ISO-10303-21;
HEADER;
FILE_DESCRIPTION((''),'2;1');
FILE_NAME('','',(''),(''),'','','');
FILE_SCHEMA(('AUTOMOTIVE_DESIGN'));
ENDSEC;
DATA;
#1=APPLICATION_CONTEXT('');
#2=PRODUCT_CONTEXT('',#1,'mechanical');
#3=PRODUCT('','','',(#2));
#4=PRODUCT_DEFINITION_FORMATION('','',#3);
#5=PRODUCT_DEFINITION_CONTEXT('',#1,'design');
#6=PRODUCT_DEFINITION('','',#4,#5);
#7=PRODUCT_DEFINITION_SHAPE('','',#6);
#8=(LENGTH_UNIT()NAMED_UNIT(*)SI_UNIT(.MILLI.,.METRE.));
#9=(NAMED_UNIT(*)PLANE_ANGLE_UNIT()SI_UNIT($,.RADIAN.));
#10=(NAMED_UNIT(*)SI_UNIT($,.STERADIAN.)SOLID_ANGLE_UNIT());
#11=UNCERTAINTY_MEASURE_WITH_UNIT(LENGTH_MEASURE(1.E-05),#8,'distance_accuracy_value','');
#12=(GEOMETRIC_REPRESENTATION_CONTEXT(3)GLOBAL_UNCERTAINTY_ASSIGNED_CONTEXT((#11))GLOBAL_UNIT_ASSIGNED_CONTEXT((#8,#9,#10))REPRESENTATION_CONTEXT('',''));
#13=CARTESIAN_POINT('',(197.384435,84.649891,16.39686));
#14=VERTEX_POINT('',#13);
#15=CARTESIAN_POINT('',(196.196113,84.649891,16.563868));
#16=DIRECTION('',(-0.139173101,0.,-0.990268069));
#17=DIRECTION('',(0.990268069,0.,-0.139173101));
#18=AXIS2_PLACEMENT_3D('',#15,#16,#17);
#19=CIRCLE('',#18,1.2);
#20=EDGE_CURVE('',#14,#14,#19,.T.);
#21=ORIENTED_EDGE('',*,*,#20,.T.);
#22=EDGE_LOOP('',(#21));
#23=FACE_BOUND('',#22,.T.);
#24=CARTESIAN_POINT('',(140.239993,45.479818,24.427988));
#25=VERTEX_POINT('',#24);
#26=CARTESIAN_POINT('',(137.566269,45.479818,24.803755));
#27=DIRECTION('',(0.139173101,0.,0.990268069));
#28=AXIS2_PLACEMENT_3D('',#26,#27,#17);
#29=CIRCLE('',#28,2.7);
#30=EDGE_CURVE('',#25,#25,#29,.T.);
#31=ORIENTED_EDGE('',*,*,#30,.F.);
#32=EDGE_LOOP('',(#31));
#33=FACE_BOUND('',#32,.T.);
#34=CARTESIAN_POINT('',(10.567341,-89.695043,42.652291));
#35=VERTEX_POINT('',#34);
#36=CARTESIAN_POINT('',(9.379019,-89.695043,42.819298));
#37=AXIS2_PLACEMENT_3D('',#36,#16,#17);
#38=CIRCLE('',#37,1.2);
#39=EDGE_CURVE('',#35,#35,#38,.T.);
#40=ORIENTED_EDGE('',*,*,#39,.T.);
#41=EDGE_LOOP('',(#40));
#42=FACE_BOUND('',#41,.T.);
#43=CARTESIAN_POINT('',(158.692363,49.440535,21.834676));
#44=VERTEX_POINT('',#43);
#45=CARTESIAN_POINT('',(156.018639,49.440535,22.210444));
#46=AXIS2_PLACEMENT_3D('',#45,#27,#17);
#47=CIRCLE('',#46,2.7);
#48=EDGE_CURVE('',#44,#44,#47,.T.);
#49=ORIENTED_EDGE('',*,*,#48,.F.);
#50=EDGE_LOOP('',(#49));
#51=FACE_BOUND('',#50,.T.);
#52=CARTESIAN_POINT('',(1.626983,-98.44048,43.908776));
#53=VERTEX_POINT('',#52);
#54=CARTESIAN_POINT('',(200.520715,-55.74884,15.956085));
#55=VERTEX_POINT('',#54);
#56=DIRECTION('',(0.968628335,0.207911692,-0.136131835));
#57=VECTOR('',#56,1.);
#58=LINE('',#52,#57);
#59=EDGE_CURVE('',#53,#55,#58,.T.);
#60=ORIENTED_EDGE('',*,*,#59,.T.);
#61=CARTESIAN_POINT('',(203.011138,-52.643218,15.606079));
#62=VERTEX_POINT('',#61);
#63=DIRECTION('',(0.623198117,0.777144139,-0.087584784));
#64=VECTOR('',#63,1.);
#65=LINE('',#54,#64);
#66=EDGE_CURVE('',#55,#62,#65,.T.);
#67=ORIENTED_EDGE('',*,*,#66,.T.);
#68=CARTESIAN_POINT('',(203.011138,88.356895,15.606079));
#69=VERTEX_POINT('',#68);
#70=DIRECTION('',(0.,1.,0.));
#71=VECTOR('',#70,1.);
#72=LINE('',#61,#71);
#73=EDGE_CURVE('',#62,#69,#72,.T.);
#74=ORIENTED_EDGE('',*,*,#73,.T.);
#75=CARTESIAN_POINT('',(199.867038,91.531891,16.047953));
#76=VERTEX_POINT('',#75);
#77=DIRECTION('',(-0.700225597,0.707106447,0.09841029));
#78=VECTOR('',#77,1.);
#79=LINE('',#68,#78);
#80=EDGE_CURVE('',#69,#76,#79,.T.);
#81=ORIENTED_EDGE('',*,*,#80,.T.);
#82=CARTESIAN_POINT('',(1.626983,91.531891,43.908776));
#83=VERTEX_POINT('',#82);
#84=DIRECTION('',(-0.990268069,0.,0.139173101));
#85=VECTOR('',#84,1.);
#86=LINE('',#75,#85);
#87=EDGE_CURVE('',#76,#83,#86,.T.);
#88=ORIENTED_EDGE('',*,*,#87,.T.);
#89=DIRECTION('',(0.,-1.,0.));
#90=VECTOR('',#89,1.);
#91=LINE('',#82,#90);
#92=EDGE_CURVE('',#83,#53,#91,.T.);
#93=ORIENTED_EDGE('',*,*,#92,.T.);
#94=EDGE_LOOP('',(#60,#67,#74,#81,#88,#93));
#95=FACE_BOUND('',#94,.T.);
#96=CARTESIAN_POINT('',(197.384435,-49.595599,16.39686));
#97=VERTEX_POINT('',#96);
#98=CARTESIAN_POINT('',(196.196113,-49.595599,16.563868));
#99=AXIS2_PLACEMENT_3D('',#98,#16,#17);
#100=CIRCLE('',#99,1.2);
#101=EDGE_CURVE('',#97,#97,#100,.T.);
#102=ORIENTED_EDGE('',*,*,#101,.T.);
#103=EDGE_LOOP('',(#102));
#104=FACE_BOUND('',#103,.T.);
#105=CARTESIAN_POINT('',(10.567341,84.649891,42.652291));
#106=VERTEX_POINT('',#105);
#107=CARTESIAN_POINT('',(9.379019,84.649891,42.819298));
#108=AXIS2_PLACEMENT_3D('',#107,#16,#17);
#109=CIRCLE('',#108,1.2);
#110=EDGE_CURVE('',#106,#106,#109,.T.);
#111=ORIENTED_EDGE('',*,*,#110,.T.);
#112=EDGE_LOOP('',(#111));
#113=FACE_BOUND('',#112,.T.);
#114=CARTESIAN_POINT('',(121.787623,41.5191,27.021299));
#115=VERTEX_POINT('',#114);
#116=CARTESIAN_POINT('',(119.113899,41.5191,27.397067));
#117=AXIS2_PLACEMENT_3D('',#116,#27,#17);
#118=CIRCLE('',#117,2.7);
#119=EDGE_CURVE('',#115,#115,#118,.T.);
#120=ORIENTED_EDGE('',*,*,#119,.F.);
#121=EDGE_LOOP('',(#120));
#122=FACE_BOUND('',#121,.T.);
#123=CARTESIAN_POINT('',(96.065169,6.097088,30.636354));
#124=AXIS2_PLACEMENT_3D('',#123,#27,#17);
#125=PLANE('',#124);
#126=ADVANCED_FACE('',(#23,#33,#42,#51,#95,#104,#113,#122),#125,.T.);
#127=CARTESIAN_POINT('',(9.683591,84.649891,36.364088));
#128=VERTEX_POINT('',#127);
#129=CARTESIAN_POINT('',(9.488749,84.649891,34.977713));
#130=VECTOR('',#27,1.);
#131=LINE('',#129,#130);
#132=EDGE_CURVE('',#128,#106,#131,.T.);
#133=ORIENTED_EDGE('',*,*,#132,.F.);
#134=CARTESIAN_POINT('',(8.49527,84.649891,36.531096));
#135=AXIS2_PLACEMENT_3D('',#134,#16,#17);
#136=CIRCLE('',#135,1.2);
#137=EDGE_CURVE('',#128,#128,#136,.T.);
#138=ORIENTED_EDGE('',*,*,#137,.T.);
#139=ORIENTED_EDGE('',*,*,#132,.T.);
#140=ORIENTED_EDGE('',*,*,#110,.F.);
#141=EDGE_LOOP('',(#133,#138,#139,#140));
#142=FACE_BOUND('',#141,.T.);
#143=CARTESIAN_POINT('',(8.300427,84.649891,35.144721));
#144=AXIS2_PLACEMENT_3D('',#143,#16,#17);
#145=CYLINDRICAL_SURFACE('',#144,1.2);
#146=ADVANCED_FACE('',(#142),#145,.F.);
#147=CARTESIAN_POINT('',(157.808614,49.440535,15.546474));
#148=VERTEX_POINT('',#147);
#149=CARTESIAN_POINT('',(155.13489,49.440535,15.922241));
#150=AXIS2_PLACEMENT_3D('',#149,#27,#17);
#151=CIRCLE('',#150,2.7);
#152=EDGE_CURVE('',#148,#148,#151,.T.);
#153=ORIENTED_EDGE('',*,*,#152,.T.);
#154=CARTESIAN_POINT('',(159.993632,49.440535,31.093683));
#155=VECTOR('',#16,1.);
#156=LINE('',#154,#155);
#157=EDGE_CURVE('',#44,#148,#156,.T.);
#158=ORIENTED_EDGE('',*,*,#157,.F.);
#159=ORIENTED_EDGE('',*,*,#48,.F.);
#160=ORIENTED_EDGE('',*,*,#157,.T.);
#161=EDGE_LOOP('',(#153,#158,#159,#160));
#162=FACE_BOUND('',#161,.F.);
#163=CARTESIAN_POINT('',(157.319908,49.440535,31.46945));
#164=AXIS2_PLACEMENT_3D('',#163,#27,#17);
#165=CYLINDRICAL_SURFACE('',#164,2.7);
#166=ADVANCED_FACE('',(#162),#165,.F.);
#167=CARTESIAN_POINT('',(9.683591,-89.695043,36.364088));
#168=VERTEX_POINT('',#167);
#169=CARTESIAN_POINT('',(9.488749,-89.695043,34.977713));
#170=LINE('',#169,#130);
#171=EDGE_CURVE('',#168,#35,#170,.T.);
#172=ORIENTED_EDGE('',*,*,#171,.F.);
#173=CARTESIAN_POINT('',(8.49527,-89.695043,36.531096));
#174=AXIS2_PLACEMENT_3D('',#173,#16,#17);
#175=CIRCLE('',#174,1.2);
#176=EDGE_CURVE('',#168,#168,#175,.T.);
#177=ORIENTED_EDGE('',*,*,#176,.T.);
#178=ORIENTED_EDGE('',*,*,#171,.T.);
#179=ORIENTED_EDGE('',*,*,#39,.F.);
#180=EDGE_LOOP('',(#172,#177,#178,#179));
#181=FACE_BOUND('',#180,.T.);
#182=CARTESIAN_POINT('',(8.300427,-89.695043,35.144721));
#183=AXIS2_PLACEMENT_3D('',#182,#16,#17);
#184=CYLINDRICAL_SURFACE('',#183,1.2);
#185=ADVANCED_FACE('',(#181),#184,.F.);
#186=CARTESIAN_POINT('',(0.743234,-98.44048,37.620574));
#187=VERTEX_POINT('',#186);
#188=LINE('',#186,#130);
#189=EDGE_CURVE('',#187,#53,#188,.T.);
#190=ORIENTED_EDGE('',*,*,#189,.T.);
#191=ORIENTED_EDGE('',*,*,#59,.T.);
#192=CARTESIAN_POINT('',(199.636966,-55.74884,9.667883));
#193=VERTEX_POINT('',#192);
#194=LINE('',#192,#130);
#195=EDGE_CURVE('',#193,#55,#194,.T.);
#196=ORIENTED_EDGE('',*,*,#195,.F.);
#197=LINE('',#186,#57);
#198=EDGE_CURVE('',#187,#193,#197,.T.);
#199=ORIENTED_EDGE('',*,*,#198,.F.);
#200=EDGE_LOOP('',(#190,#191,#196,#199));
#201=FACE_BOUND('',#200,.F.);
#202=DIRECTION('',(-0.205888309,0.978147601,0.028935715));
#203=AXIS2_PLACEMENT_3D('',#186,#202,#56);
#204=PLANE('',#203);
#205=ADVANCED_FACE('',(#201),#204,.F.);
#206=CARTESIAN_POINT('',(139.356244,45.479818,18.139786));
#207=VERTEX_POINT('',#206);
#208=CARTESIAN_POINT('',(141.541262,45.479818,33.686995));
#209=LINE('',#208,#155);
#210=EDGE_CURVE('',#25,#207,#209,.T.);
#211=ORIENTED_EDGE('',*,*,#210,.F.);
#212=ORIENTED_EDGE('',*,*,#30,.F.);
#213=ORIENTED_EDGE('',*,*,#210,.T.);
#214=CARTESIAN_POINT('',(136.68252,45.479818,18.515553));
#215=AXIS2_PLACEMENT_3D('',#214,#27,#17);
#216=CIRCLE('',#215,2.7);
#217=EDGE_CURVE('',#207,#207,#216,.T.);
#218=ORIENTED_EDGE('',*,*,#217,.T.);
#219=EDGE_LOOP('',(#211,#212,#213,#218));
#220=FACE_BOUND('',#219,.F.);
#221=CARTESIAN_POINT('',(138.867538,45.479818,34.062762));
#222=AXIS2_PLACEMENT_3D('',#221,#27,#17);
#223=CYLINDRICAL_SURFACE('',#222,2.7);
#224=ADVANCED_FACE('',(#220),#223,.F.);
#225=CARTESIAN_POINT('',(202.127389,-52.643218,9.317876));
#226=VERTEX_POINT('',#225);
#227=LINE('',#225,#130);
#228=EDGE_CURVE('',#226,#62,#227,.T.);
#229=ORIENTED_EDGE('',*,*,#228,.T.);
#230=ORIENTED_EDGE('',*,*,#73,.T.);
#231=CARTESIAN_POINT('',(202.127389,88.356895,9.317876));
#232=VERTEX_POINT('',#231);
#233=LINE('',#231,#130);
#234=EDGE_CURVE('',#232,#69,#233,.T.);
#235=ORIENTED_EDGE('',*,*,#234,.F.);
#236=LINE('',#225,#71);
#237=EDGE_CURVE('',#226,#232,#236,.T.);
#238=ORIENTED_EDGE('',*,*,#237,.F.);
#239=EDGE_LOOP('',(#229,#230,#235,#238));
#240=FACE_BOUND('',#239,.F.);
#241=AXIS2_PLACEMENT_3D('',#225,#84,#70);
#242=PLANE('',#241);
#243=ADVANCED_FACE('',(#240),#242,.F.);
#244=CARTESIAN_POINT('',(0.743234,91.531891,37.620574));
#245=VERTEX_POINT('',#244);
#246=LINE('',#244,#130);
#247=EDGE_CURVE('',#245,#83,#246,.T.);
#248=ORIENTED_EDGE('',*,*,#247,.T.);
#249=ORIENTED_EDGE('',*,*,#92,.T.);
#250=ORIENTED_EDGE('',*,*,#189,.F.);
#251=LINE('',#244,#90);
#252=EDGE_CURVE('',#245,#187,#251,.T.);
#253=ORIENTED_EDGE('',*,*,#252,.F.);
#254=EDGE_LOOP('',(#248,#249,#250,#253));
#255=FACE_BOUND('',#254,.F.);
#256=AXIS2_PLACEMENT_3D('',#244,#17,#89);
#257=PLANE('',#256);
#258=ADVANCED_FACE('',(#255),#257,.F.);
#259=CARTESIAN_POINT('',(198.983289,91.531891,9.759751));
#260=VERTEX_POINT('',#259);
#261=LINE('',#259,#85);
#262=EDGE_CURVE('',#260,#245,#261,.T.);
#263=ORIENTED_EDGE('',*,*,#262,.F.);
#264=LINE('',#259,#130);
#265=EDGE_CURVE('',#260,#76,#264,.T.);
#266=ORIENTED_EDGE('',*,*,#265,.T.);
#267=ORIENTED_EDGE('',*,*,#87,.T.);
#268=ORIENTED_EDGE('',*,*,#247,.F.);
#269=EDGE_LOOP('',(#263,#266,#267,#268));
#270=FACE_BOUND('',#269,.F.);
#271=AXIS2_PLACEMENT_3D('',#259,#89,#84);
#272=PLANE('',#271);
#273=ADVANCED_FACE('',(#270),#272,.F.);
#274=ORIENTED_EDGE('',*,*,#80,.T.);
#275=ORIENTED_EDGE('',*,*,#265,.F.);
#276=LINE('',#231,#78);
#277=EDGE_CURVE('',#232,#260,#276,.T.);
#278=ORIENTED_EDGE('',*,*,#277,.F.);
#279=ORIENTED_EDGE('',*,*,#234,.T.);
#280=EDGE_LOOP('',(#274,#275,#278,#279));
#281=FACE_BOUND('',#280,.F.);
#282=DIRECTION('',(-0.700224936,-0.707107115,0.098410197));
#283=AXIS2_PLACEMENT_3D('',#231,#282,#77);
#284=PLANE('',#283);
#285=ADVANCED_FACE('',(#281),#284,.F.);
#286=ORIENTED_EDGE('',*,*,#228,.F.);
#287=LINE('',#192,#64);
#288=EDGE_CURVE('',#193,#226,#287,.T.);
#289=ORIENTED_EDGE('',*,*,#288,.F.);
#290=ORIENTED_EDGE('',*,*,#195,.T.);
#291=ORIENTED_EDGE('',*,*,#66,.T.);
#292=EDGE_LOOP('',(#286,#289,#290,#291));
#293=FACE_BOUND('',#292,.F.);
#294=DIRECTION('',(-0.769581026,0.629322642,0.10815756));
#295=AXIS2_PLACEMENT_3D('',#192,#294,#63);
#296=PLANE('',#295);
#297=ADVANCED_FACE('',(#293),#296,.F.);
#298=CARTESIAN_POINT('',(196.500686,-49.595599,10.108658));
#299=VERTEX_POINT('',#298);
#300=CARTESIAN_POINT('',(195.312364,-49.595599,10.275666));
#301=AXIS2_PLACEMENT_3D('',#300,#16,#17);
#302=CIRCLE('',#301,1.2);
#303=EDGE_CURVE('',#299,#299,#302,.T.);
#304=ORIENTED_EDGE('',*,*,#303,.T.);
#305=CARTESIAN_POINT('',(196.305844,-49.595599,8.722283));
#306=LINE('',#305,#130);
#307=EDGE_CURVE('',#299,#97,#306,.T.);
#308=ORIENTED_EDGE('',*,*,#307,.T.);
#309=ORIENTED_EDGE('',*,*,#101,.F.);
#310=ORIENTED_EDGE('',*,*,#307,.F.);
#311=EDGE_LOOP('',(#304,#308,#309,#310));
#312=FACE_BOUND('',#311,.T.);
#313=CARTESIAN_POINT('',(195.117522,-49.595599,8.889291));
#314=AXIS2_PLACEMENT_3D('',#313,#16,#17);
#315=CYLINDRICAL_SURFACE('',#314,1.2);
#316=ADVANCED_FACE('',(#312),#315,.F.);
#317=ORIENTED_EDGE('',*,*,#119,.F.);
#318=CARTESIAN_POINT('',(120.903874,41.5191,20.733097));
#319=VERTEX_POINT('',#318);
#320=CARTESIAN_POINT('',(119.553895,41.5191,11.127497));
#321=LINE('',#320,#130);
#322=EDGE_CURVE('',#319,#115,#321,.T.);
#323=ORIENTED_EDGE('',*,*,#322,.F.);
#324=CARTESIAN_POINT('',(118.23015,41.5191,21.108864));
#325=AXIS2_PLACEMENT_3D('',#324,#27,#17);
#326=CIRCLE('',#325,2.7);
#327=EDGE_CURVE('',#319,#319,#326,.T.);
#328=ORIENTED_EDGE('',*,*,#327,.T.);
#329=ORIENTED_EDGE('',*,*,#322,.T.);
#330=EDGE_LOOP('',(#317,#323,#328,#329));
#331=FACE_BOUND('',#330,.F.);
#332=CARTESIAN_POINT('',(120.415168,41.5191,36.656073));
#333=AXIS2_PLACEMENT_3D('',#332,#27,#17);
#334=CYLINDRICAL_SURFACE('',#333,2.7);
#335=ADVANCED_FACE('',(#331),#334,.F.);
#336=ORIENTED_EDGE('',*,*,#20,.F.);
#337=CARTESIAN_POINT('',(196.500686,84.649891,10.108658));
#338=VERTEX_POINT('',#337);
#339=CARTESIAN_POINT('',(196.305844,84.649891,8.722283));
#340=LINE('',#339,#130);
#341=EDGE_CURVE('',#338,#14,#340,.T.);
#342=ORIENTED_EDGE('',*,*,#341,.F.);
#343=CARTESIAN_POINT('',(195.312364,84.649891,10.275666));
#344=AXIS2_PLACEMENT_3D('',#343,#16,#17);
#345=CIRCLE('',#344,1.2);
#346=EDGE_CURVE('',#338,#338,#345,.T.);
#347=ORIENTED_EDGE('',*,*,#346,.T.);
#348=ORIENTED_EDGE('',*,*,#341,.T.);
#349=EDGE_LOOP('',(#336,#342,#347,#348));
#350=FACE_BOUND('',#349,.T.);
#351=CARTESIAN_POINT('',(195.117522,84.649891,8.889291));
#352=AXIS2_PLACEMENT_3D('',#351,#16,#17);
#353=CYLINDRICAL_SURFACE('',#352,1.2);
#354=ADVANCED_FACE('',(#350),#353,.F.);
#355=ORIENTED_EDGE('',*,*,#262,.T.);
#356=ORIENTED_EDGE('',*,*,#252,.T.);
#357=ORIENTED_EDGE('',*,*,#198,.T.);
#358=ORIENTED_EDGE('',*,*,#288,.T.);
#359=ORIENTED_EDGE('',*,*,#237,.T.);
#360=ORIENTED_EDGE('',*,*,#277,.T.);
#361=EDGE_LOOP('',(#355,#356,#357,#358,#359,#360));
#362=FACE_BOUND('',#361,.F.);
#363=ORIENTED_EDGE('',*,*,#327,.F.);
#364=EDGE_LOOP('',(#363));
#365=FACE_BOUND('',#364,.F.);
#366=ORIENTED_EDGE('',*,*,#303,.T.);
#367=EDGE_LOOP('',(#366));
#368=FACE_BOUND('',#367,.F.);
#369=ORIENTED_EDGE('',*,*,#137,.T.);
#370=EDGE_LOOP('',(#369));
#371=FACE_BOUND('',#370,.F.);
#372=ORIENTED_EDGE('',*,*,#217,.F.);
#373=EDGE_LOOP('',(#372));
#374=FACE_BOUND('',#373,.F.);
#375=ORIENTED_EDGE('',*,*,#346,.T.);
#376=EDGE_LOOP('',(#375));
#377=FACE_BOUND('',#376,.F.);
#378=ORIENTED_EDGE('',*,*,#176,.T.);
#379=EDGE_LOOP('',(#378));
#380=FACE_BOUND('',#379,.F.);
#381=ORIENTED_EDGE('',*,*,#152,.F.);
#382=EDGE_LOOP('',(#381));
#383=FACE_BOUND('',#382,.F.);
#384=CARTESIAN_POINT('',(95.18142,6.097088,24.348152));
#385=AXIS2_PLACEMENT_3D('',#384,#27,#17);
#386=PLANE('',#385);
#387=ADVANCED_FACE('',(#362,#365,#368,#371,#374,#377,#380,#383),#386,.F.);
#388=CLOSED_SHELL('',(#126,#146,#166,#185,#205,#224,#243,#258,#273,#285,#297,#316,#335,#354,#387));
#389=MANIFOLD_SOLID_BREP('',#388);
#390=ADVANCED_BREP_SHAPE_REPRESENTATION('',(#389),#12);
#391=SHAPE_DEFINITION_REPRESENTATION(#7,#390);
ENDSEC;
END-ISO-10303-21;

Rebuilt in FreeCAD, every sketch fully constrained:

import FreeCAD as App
import Part
import Sketcher
Q = App.Units.Quantity

doc = App.newDocument("Part")
body = doc.addObject("PartDesign::Body", "Body")
body.AllowCompound = True

# Sketch on XY plane
sketch1 = body.newObject("Sketcher::SketchObject", "Sketch")
sketch1.AttachmentSupport = (doc.getObject("XY_Plane"), [""])
sketch1.MapMode = "FlatFace"
sketch1.addGeometry(Part.Circle(App.Vector(116.1, 49.4, 0), App.Vector(0, 0, 1), 2.7), False)
sketch1.addGeometry(Part.Circle(App.Vector(97.4, 45.5, 0), App.Vector(0, 0, 1), 2.7), False)
sketch1.addGeometry(Part.Circle(App.Vector(78.8, 41.5, 0), App.Vector(0, 0, 1), 2.7), False)
sketch1.addConstraint(Sketcher.Constraint("Equal", 0, 1))
sketch1.addConstraint(Sketcher.Constraint("Equal", 1, 2))
sketch1.addConstraint(Sketcher.Constraint("Diameter", 0, 5.4))
sketch1.addConstraint(Sketcher.Constraint("DistanceX", -1, 1, 1, 3, 97.448702))
sketch1.addConstraint(Sketcher.Constraint("DistanceY", -1, 1, 2, 3, 41.5191))
sketch1.addConstraint(Sketcher.Constraint("DistanceY", -1, 1, 1, 3, 45.479818))
sketch1.addConstraint(Sketcher.Constraint("DistanceX", -1, 1, 2, 3, 78.81499))
sketch1.addConstraint(Sketcher.Constraint("DistanceX", -1, 1, 0, 3, 116.082414))
sketch1.addConstraint(Sketcher.Constraint("DistanceY", -1, 1, 0, 3, 49.440535))
pad1 = body.newObject("PartDesign::Pad", "Pad")
pad1.Profile = sketch1
pad1.Length = 50.8
pad1.Midplane = True
body2 = doc.addObject("PartDesign::Body", "Body001")
body2.AllowCompound = True
doc.recompute()

body.Placement = App.Placement(App.Vector(42.3672, 0, 47.625), App.Rotation(App.Vector(0, 1, 0), 8))
boolean = body2.newObject("PartDesign::Boolean", "Boolean")
boolean.Type = "Fuse"
boolean.addObjects([body])
body3 = doc.addObject("PartDesign::Body", "Body002")
body3.AllowCompound = True

# Sketch on XY plane
sketch2 = body3.newObject("Sketcher::SketchObject", "Sketch001")
sketch2.AttachmentSupport = (doc.getObject("XY_Plane002"), [""])
sketch2.MapMode = "FlatFace"
sketch2.addGeometry(Part.Circle(App.Vector(-32, 84.6, 0), App.Vector(0, 0, 1), 1.2), False)
sketch2.addGeometry(Part.Circle(App.Vector(-32, -89.7, 0), App.Vector(0, 0, 1), 1.2), False)
sketch2.addGeometry(Part.Circle(App.Vector(156.7, -49.6, 0), App.Vector(0, 0, 1), 1.2), False)
sketch2.addGeometry(Part.Circle(App.Vector(156.7, 84.6, 0), App.Vector(0, 0, 1), 1.2), False)
sketch2.addConstraint(Sketcher.Constraint("Equal", 0, 1))
sketch2.addConstraint(Sketcher.Constraint("Equal", 1, 2))
sketch2.addConstraint(Sketcher.Constraint("Equal", 2, 3))
sketch2.addConstraint(Sketcher.Constraint("Horizontal", 0, 3, 3, 3))
sketch2.addConstraint(Sketcher.Constraint("Vertical", 0, 3, 1, 3))
sketch2.addConstraint(Sketcher.Constraint("Vertical", 2, 3, 3, 3))
sketch2.addConstraint(Sketcher.Constraint("Diameter", 0, 2.4))
sketch2.addConstraint(Sketcher.Constraint("DistanceY", 2, 3, -1, 1, 49.595599))
sketch2.addConstraint(Sketcher.Constraint("DistanceX", 0, 3, -1, 1, 31.998318))
sketch2.addConstraint(Sketcher.Constraint("DistanceY", -1, 1, 0, 3, 84.649891))
sketch2.addConstraint(Sketcher.Constraint("DistanceY", 1, 3, -1, 1, 89.695043))
sketch2.addConstraint(Sketcher.Constraint("DistanceX", -1, 1, 2, 3, 156.654735))
pad2 = body3.newObject("PartDesign::Pad", "Pad001")
pad2.Profile = sketch2
pad2.Length = 7.8
body4 = doc.addObject("PartDesign::Body", "Body003")
body4.AllowCompound = True
doc.recompute()

body3.Placement = App.Placement(App.Vector(39.98734, 0, 30.691416), App.Rotation(App.Vector(0, 1, 0), 8))
boolean2 = body4.newObject("PartDesign::Boolean", "Boolean001")
boolean2.Type = "Fuse"
boolean2.addObjects([body3])
body5 = doc.addObject("PartDesign::Body", "Body004")

# Sketch on XY plane
sketch3 = body5.newObject("Sketcher::SketchObject", "Sketch002")
sketch3.AttachmentSupport = (doc.getObject("XY_Plane004"), [""])
sketch3.MapMode = "FlatFace"
sketch3.addGeometry(Part.LineSegment(App.Vector(-39.8, 91.5, 0), App.Vector(-39.8, -98.4, 0)), False)
sketch3.addGeometry(Part.LineSegment(App.Vector(-39.8, -98.4, 0), App.Vector(161, -55.7, 0)), False)
sketch3.addGeometry(Part.LineSegment(App.Vector(161, -55.7, 0), App.Vector(163.5, -52.6, 0)), False)
sketch3.addGeometry(Part.LineSegment(App.Vector(163.5, -52.6, 0), App.Vector(163.5, 88.4, 0)), False)
sketch3.addGeometry(Part.LineSegment(App.Vector(163.5, 88.4, 0), App.Vector(160.4, 91.5, 0)), False)
sketch3.addGeometry(Part.LineSegment(App.Vector(160.4, 91.5, 0), App.Vector(-39.8, 91.5, 0)), False)
sketch3.addConstraint(Sketcher.Constraint("Coincident", 0, 2, 1, 1))
sketch3.addConstraint(Sketcher.Constraint("Coincident", 1, 2, 2, 1))
sketch3.addConstraint(Sketcher.Constraint("Coincident", 2, 2, 3, 1))
sketch3.addConstraint(Sketcher.Constraint("Coincident", 3, 2, 4, 1))
sketch3.addConstraint(Sketcher.Constraint("Coincident", 4, 2, 5, 1))
sketch3.addConstraint(Sketcher.Constraint("Coincident", 5, 2, 0, 1))
sketch3.addConstraint(Sketcher.Constraint("Vertical", 0))
sketch3.addConstraint(Sketcher.Constraint("Vertical", 3))
sketch3.addConstraint(Sketcher.Constraint("Horizontal", 5))
sketch3.addConstraint(Sketcher.Constraint("Angle", 1, Q("12 deg")))
sketch3.addConstraint(Sketcher.Constraint("DistanceX", 4, 2, 3, 2, 3.174999))
sketch3.addConstraint(Sketcher.Constraint("Distance", 2, 3.996198))
sketch3.addConstraint(Sketcher.Constraint("DistanceY", 0, 2, 0, 1, 189.972371))
sketch3.addConstraint(Sketcher.Constraint("DistanceX", 4, 2, 1, 2, 0.660101))
sketch3.addConstraint(Sketcher.Constraint("DistanceX", 5, 2, 5, 1, 200.188273))
sketch3.addConstraint(Sketcher.Constraint("DistanceY", 3, 1, 3, 2, 141.000113))
sketch3.addConstraint(Sketcher.Constraint("DistanceY", 0, 2, -1, 1, 98.44048))
sketch3.addConstraint(Sketcher.Constraint("DistanceX", 0, 2, -1, 1, 39.826537))
pad3 = body5.newObject("PartDesign::Pad", "Pad002")
pad3.Profile = sketch3
pad3.Length = 6.35
body6 = doc.addObject("PartDesign::Body", "Body005")
doc.recompute()

body5.Placement = App.Placement(App.Vector(40.182182, 0, 32.077791), App.Rotation(App.Vector(0, 1, 0), 8))
boolean3 = body6.newObject("PartDesign::Boolean", "Boolean002")
boolean3.Type = "Fuse"
boolean3.addObjects([body5])
doc.recompute()

boolean4 = body6.newObject("PartDesign::Boolean", "Boolean003")
boolean4.Type = "Cut"
boolean4.addObjects([body4])
doc.recompute()

boolean5 = body6.newObject("PartDesign::Boolean", "Boolean004")
boolean5.Type = "Cut"
boolean5.addObjects([body2])

doc.recompute()
